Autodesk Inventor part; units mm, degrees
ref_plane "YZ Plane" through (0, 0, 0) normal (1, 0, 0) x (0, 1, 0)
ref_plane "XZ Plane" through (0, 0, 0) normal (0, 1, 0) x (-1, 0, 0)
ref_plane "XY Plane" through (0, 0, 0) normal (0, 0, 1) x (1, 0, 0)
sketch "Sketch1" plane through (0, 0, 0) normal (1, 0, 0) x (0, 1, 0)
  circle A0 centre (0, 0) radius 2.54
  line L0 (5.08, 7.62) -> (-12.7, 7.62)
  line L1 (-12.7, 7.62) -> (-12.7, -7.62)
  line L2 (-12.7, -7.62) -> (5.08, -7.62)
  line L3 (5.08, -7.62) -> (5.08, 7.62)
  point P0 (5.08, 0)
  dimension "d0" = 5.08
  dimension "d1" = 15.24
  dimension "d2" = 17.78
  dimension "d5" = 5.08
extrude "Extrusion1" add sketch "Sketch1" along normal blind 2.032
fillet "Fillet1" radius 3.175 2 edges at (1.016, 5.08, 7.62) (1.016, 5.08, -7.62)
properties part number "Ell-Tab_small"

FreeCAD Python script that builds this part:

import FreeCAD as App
import Part
import Sketcher
Q = App.Units.Quantity


def edges_at(feature, points):
    """Names of the edges that pass closest to the given points."""
    edges = feature.Shape.Edges
    near = lambda p: min(range(len(edges)), key=lambda i: edges[i].distToShape(Part.Vertex(*p))[0])
    return sorted({f"Edge{near(p) + 1}" for p in points})

doc = App.newDocument("Part")
body = doc.addObject("PartDesign::Body", "Body")

# Sketch on YZ plane
sketch1 = body.newObject("Sketcher::SketchObject", "Sketch")
sketch1.AttachmentSupport = (doc.getObject("YZ_Plane"), [""])
sketch1.MapMode = "FlatFace"
sketch1.addGeometry([
    Part.LineSegment(App.Vector(5.1, -7.6, 0), App.Vector(5.1, 7.6, 0)),  # 0
    Part.LineSegment(App.Vector(5.1, 7.6, 0), App.Vector(-12.7, 7.6, 0)),  # 1
    Part.LineSegment(App.Vector(-12.7, 7.6, 0), App.Vector(-12.7, -7.6, 0)),  # 2
    Part.LineSegment(App.Vector(-12.7, -7.6, 0), App.Vector(5.1, -7.6, 0)),  # 3
    Part.Circle(App.Vector(0, 0, 0), App.Vector(0, 0, 1), 2.5),  # 4
], False)
sketch1.addConstraint([
    Sketcher.Constraint("Coincident", 0, 2, 1, 1),
    Sketcher.Constraint("Coincident", 1, 2, 2, 1),
    Sketcher.Constraint("Coincident", 2, 2, 3, 1),
    Sketcher.Constraint("Coincident", 3, 2, 0, 1),
    Sketcher.Constraint("Vertical", 0),
    Sketcher.Constraint("Horizontal", 1),
    Sketcher.Constraint("Vertical", 2),
    Sketcher.Constraint("Horizontal", 3),
    Sketcher.Constraint("Coincident", 4, 3, -1, 1),
    Sketcher.Constraint("Diameter", 4, Q("0.2 in")),
    Sketcher.Constraint("DistanceX", 1, 2, 1, 1, Q("0.7 in")),
    Sketcher.Constraint("DistanceY", 0, 1, 0, 2, Q("0.6 in")),
    Sketcher.Constraint("DistanceX", -1, 1, 0, 2, Q("0.2 in")),
    Sketcher.Constraint("DistanceY", -1, 1, 0, 2, Q("0.3 in")),
])
pad1 = body.newObject("PartDesign::Pad", "Pad")
pad1.Profile = sketch1
pad1.Length = Q("0.08 in")
doc.recompute()

fillet = body.newObject("PartDesign::Fillet", "Fillet")
fillet.Base = (pad1, edges_at(pad1, [(1.016, 5.08, 7.62), (1.016, 5.08, -7.62)]))
fillet.Radius = Q("0.125 in")

doc.recompute()
